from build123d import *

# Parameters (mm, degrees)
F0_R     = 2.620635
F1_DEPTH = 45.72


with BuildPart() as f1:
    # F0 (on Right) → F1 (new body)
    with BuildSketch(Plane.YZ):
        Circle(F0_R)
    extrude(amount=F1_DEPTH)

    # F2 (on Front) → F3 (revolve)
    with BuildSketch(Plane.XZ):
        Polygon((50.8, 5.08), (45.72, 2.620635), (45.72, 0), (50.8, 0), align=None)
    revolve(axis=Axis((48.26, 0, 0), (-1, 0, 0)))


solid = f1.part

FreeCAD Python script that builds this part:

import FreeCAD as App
import Part
import Sketcher
from FreeCAD import Vector
Q = App.Units.Quantity

doc = App.newDocument("Part")
body = doc.addObject("PartDesign::Body", "Body")

# Sketch on YZ plane
sketch1 = body.newObject("Sketcher::SketchObject", "Sketch")
sketch1.AttachmentSupport = (doc.getObject("YZ_Plane"), [""])
sketch1.MapMode = "FlatFace"
sketch1.addGeometry(Part.Circle(Vector(0, 0, 0), Vector(0, 0, 1), 2.6), False)
sketch1.addConstraint([
    Sketcher.Constraint("Coincident", 0, 3, -1, 1),
    Sketcher.Constraint("Diameter", 0, 5.24127),
])
pad1 = body.newObject("PartDesign::Pad", "Pad")
pad1.Profile = sketch1
pad1.Length = Q("1.8 in")

# Sketch on XZ plane
sketch2 = body.newObject("Sketcher::SketchObject", "Sketch001")
sketch2.AttachmentSupport = (doc.getObject("XZ_Plane"), [""])
sketch2.MapMode = "FlatFace"
sketch2.addGeometry([
    Part.LineSegment(Vector(50.8, 5.1, 0), Vector(45.7, 2.6, 0)),
    Part.LineSegment(Vector(45.7, 2.6, 0), Vector(45.7, 0, 0)),
    Part.LineSegment(Vector(45.7, 0, 0), Vector(50.8, 0, 0)),
    Part.LineSegment(Vector(50.8, 0, 0), Vector(50.8, 5.1, 0)),
], False)
sketch2.addConstraint([
    Sketcher.Constraint("Coincident", 0, 2, 1, 1),
    Sketcher.Constraint("Coincident", 1, 2, 2, 1),
    Sketcher.Constraint("Coincident", 2, 2, 3, 1),
    Sketcher.Constraint("Coincident", 3, 2, 0, 1),
    Sketcher.Constraint("Vertical", 1),
    Sketcher.Constraint("Horizontal", 2),
    Sketcher.Constraint("Vertical", 3),
    Sketcher.Constraint("PointOnObject", 1, 2, -1),
    Sketcher.Constraint("Equal", 2, 3),
    Sketcher.Constraint("DistanceX", 2, 1, 2, 2, Q("0.2 in")),
    Sketcher.Constraint("DistanceX", -1, 1, 2, 2, Q("2 in")),
    Sketcher.Constraint("DistanceY", 1, 2, 1, 1, 2.620635),
])
revolution = body.newObject("PartDesign::Revolution", "Revolution")
revolution.Profile = sketch2
revolution.ReferenceAxis = (sketch2, ["H_Axis"])
revolution.Angle = 360

doc.recompute()
